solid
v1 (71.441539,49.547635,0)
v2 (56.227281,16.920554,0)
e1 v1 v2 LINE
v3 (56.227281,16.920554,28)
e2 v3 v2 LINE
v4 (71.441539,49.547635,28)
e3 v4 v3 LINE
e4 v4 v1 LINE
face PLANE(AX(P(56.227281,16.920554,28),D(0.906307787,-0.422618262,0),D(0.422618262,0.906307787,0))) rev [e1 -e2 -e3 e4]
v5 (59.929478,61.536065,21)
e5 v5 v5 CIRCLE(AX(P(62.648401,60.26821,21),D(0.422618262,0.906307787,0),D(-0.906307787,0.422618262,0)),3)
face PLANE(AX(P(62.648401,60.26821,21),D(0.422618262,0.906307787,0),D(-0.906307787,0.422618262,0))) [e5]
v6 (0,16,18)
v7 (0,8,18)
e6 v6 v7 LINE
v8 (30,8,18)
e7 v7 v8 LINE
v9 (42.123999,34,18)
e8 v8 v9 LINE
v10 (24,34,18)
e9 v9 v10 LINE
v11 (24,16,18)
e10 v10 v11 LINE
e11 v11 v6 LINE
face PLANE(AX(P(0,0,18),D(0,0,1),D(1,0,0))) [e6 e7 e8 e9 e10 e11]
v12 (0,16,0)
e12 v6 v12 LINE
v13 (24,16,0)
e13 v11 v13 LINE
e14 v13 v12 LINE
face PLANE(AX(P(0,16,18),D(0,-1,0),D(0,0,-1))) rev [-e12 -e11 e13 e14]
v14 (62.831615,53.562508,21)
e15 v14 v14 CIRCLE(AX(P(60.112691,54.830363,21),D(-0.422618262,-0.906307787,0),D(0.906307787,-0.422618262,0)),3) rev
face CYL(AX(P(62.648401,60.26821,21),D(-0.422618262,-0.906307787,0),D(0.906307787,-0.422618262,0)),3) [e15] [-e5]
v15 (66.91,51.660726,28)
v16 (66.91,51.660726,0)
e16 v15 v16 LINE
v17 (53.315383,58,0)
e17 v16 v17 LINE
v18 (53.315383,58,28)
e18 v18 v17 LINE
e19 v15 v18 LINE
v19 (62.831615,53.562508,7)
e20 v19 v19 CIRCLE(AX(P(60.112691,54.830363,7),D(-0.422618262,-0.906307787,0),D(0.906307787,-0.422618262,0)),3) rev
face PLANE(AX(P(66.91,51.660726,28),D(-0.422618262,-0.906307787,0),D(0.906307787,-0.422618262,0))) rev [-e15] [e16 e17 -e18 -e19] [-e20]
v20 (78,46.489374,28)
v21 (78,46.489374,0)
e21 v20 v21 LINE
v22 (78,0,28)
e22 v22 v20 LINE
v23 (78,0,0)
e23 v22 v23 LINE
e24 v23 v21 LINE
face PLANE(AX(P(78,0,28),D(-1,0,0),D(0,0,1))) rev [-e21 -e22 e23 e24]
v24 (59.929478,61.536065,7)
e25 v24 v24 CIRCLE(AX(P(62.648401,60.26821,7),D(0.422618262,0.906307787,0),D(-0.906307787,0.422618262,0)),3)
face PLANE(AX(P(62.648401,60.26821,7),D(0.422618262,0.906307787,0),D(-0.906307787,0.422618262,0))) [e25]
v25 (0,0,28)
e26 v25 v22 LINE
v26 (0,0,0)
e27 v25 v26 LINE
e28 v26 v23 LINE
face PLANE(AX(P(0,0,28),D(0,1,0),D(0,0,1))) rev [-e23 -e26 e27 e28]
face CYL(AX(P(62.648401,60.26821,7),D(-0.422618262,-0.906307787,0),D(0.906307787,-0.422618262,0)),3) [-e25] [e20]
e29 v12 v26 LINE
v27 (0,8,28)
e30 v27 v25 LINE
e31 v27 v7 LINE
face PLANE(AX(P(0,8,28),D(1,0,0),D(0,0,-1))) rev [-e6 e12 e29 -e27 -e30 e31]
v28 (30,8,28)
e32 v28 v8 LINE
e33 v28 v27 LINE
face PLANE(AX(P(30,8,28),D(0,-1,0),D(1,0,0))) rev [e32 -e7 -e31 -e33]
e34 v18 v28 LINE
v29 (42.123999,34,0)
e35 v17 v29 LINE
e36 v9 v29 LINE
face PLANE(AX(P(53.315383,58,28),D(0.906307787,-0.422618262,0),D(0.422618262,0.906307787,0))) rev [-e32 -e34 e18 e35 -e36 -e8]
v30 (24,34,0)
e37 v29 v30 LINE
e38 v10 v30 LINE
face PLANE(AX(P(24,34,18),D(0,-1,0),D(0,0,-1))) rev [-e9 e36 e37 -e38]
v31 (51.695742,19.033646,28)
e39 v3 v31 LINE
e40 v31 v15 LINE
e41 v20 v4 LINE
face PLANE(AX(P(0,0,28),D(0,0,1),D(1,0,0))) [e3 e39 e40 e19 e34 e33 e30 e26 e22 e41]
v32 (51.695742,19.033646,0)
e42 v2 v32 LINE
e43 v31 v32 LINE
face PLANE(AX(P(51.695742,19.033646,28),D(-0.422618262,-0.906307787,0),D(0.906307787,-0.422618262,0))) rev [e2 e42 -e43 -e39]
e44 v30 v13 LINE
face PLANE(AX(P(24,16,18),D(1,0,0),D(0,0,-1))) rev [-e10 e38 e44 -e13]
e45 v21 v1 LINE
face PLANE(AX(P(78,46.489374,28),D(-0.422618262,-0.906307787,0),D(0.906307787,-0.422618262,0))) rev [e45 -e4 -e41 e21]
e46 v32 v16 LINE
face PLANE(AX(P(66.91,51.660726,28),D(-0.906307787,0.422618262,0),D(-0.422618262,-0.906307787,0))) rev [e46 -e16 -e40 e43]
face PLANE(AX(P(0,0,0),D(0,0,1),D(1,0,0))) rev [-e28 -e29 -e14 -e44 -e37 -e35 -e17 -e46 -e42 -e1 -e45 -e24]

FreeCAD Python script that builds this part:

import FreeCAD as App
import Part
import Sketcher

V = App.Vector
Q = App.Units.Quantity

doc = App.newDocument("Part")
body = doc.addObject("PartDesign::Body", "Body")

# Sketch on XY plane
sketch1 = doc.addObject("Sketcher::SketchObject", "Sketch")
body.addObject(sketch1)
sketch1.AttachmentSupport = (doc.XY_Plane, [""])
sketch1.MapMode = "FlatFace"
sketch1.addGeometry(Part.LineSegment(V(0, 0, 0), V(78, 0, 0)), False)
sketch1.addGeometry(Part.LineSegment(V(78, 0, 0), V(78, 46.5, 0)), False)
sketch1.addGeometry(Part.LineSegment(V(78, 46.5, 0), V(71.4, 49.5, 0)), False)
sketch1.addGeometry(Part.LineSegment(V(71.4, 49.5, 0), V(56.2, 16.9, 0)), False)
sketch1.addGeometry(Part.LineSegment(V(56.2, 16.9, 0), V(51.7, 19, 0)), False)
sketch1.addGeometry(Part.LineSegment(V(51.7, 19, 0), V(66.9, 51.7, 0)), False)
sketch1.addGeometry(Part.LineSegment(V(66.9, 51.7, 0), V(53.3, 58, 0)), False)
sketch1.addGeometry(Part.LineSegment(V(53.3, 58, 0), V(30, 8, 0)), False)
sketch1.addGeometry(Part.LineSegment(V(30, 8, 0), V(0, 8, 0)), False)
sketch1.addGeometry(Part.LineSegment(V(0, 8, 0), V(0, 0, 0)), False)
sketch1.addConstraint(Sketcher.Constraint("Coincident", 0, 2, 1, 1))
sketch1.addConstraint(Sketcher.Constraint("Coincident", 1, 2, 2, 1))
sketch1.addConstraint(Sketcher.Constraint("Coincident", 2, 2, 3, 1))
sketch1.addConstraint(Sketcher.Constraint("Coincident", 3, 2, 4, 1))
sketch1.addConstraint(Sketcher.Constraint("Coincident", 4, 2, 5, 1))
sketch1.addConstraint(Sketcher.Constraint("Coincident", 5, 2, 6, 1))
sketch1.addConstraint(Sketcher.Constraint("Coincident", 6, 2, 7, 1))
sketch1.addConstraint(Sketcher.Constraint("Coincident", 7, 2, 8, 1))
sketch1.addConstraint(Sketcher.Constraint("Coincident", 8, 2, 9, 1))
sketch1.addConstraint(Sketcher.Constraint("Coincident", 9, 2, 0, 1))
sketch1.addConstraint(Sketcher.Constraint("Horizontal", 0))
sketch1.addConstraint(Sketcher.Constraint("Vertical", 1))
sketch1.addConstraint(Sketcher.Constraint("Horizontal", 8))
sketch1.addConstraint(Sketcher.Constraint("Vertical", 9))
sketch1.addConstraint(Sketcher.Constraint("Coincident", 9, 2, -1, 1))
sketch1.addConstraint(Sketcher.Constraint("Perpendicular", 2, 3))
sketch1.addConstraint(Sketcher.Constraint("Perpendicular", 3, 4))
sketch1.addConstraint(Sketcher.Constraint("Perpendicular", 4, 5))
sketch1.addConstraint(Sketcher.Constraint("Perpendicular", 5, 6))
sketch1.addConstraint(Sketcher.Constraint("Perpendicular", 6, 7))
sketch1.addConstraint(Sketcher.Constraint("Equal", 3, 5))
sketch1.addConstraint(Sketcher.Constraint("DistanceX", 0, 1, 0, 2, 78.0))
sketch1.addConstraint(Sketcher.Constraint("DistanceX", 8, 2, 8, 1, 30.0))
sketch1.addConstraint(Sketcher.Constraint("DistanceY", 9, 2, 9, 1, 8.0))
sketch1.addConstraint(Sketcher.Constraint("Angle", 2, Q("155 deg")))
sketch1.addConstraint(Sketcher.Constraint("Distance", 3, 36.0))
sketch1.addConstraint(Sketcher.Constraint("Distance", 4, 5.0))
sketch1.addConstraint(Sketcher.Constraint("Distance", 6, 15.0))
sketch1.addConstraint(Sketcher.Constraint("DistanceY", -1, 1, 6, 2, 58.0))
pad1 = doc.addObject("PartDesign::Pad", "Pad")
body.addObject(pad1)
pad1.Profile = sketch1
pad1.Length = 28

# Sketch on an angled plane
sketch2 = doc.addObject("Sketcher::SketchObject", "Sketch001")
body.addObject(sketch2)
sketch2.Placement = App.Placement(V(31.737747, 68.061817, 0), App.Rotation(V(0.906307787, -0.422618262, 0), V(0, 0, -1), V(0.422618262, 0.906307787, 0), "ZXY"))
sketch2.addGeometry(Part.Circle(V(31.3, -7, 0), V(0, 0, 1), 3), False)
sketch2.addGeometry(Part.Circle(V(31.3, -21, 0), V(0, 0, 1), 3), False)
sketch2.addConstraint(Sketcher.Constraint("Equal", 0, 1))
sketch2.addConstraint(Sketcher.Constraint("Vertical", 0, 3, 1, 3))
sketch2.addConstraint(Sketcher.Constraint("Diameter", 0, 6.0))
sketch2.addConstraint(Sketcher.Constraint("DistanceY", 0, 3, -1, 1, 7.0))
sketch2.addConstraint(Sketcher.Constraint("DistanceY", 1, 3, -1, 1, 21.0))
sketch2.addConstraint(Sketcher.Constraint("DistanceX", -1, 1, 0, 3, 31.308288))
pad2 = doc.addObject("PartDesign::Pad", "Pad001")
body.addObject(pad2)
pad2.Profile = sketch2
pad2.Length = 6

# Sketch on XY plane
sketch3 = doc.addObject("Sketcher::SketchObject", "Sketch002")
body.addObject(sketch3)
sketch3.AttachmentSupport = (doc.XY_Plane, [""])
sketch3.MapMode = "FlatFace"
sketch3.addGeometry(Part.LineSegment(V(0, 16, 0), V(0, 8, 0)), False)
sketch3.addGeometry(Part.LineSegment(V(0, 8, 0), V(30, 8, 0)), False)
sketch3.addGeometry(Part.LineSegment(V(30, 8, 0), V(42, 34, 0)), False)
sketch3.addGeometry(Part.LineSegment(V(42, 34, 0), V(24, 34, 0)), False)
sketch3.addGeometry(Part.LineSegment(V(24, 34, 0), V(24, 16, 0)), False)
sketch3.addGeometry(Part.LineSegment(V(24, 16, 0), V(0, 16, 0)), False)
sketch3.addConstraint(Sketcher.Constraint("Coincident", 0, 2, 1, 1))
sketch3.addConstraint(Sketcher.Constraint("Coincident", 1, 2, 2, 1))
sketch3.addConstraint(Sketcher.Constraint("Coincident", 2, 2, 3, 1))
sketch3.addConstraint(Sketcher.Constraint("Coincident", 3, 2, 4, 1))
sketch3.addConstraint(Sketcher.Constraint("Coincident", 4, 2, 5, 1))
sketch3.addConstraint(Sketcher.Constraint("Coincident", 5, 2, 0, 1))
sketch3.addConstraint(Sketcher.Constraint("Vertical", 0))
sketch3.addConstraint(Sketcher.Constraint("Horizontal", 1))
sketch3.addConstraint(Sketcher.Constraint("Horizontal", 3))
sketch3.addConstraint(Sketcher.Constraint("Vertical", 4))
sketch3.addConstraint(Sketcher.Constraint("Horizontal", 5))
sketch3.addConstraint(Sketcher.Constraint("PointOnObject", 0, 2, -2))
sketch3.addConstraint(Sketcher.Constraint("DistanceX", 1, 1, 1, 2, 30.0))
sketch3.addConstraint(Sketcher.Constraint("DistanceX", 5, 2, 5, 1, 24.0))
sketch3.addConstraint(Sketcher.Constraint("DistanceY", 0, 2, 0, 1, 8.0))
sketch3.addConstraint(Sketcher.Constraint("DistanceY", 4, 2, 4, 1, 18.0))
sketch3.addConstraint(Sketcher.Constraint("Angle", 2, Q("65 deg")))
sketch3.addConstraint(Sketcher.Constraint("DistanceY", -1, 1, 0, 2, 8.0))
pad3 = doc.addObject("PartDesign::Pad", "Pad002")
body.addObject(pad3)
pad3.Profile = sketch3
pad3.Length = 18

doc.recompute()
